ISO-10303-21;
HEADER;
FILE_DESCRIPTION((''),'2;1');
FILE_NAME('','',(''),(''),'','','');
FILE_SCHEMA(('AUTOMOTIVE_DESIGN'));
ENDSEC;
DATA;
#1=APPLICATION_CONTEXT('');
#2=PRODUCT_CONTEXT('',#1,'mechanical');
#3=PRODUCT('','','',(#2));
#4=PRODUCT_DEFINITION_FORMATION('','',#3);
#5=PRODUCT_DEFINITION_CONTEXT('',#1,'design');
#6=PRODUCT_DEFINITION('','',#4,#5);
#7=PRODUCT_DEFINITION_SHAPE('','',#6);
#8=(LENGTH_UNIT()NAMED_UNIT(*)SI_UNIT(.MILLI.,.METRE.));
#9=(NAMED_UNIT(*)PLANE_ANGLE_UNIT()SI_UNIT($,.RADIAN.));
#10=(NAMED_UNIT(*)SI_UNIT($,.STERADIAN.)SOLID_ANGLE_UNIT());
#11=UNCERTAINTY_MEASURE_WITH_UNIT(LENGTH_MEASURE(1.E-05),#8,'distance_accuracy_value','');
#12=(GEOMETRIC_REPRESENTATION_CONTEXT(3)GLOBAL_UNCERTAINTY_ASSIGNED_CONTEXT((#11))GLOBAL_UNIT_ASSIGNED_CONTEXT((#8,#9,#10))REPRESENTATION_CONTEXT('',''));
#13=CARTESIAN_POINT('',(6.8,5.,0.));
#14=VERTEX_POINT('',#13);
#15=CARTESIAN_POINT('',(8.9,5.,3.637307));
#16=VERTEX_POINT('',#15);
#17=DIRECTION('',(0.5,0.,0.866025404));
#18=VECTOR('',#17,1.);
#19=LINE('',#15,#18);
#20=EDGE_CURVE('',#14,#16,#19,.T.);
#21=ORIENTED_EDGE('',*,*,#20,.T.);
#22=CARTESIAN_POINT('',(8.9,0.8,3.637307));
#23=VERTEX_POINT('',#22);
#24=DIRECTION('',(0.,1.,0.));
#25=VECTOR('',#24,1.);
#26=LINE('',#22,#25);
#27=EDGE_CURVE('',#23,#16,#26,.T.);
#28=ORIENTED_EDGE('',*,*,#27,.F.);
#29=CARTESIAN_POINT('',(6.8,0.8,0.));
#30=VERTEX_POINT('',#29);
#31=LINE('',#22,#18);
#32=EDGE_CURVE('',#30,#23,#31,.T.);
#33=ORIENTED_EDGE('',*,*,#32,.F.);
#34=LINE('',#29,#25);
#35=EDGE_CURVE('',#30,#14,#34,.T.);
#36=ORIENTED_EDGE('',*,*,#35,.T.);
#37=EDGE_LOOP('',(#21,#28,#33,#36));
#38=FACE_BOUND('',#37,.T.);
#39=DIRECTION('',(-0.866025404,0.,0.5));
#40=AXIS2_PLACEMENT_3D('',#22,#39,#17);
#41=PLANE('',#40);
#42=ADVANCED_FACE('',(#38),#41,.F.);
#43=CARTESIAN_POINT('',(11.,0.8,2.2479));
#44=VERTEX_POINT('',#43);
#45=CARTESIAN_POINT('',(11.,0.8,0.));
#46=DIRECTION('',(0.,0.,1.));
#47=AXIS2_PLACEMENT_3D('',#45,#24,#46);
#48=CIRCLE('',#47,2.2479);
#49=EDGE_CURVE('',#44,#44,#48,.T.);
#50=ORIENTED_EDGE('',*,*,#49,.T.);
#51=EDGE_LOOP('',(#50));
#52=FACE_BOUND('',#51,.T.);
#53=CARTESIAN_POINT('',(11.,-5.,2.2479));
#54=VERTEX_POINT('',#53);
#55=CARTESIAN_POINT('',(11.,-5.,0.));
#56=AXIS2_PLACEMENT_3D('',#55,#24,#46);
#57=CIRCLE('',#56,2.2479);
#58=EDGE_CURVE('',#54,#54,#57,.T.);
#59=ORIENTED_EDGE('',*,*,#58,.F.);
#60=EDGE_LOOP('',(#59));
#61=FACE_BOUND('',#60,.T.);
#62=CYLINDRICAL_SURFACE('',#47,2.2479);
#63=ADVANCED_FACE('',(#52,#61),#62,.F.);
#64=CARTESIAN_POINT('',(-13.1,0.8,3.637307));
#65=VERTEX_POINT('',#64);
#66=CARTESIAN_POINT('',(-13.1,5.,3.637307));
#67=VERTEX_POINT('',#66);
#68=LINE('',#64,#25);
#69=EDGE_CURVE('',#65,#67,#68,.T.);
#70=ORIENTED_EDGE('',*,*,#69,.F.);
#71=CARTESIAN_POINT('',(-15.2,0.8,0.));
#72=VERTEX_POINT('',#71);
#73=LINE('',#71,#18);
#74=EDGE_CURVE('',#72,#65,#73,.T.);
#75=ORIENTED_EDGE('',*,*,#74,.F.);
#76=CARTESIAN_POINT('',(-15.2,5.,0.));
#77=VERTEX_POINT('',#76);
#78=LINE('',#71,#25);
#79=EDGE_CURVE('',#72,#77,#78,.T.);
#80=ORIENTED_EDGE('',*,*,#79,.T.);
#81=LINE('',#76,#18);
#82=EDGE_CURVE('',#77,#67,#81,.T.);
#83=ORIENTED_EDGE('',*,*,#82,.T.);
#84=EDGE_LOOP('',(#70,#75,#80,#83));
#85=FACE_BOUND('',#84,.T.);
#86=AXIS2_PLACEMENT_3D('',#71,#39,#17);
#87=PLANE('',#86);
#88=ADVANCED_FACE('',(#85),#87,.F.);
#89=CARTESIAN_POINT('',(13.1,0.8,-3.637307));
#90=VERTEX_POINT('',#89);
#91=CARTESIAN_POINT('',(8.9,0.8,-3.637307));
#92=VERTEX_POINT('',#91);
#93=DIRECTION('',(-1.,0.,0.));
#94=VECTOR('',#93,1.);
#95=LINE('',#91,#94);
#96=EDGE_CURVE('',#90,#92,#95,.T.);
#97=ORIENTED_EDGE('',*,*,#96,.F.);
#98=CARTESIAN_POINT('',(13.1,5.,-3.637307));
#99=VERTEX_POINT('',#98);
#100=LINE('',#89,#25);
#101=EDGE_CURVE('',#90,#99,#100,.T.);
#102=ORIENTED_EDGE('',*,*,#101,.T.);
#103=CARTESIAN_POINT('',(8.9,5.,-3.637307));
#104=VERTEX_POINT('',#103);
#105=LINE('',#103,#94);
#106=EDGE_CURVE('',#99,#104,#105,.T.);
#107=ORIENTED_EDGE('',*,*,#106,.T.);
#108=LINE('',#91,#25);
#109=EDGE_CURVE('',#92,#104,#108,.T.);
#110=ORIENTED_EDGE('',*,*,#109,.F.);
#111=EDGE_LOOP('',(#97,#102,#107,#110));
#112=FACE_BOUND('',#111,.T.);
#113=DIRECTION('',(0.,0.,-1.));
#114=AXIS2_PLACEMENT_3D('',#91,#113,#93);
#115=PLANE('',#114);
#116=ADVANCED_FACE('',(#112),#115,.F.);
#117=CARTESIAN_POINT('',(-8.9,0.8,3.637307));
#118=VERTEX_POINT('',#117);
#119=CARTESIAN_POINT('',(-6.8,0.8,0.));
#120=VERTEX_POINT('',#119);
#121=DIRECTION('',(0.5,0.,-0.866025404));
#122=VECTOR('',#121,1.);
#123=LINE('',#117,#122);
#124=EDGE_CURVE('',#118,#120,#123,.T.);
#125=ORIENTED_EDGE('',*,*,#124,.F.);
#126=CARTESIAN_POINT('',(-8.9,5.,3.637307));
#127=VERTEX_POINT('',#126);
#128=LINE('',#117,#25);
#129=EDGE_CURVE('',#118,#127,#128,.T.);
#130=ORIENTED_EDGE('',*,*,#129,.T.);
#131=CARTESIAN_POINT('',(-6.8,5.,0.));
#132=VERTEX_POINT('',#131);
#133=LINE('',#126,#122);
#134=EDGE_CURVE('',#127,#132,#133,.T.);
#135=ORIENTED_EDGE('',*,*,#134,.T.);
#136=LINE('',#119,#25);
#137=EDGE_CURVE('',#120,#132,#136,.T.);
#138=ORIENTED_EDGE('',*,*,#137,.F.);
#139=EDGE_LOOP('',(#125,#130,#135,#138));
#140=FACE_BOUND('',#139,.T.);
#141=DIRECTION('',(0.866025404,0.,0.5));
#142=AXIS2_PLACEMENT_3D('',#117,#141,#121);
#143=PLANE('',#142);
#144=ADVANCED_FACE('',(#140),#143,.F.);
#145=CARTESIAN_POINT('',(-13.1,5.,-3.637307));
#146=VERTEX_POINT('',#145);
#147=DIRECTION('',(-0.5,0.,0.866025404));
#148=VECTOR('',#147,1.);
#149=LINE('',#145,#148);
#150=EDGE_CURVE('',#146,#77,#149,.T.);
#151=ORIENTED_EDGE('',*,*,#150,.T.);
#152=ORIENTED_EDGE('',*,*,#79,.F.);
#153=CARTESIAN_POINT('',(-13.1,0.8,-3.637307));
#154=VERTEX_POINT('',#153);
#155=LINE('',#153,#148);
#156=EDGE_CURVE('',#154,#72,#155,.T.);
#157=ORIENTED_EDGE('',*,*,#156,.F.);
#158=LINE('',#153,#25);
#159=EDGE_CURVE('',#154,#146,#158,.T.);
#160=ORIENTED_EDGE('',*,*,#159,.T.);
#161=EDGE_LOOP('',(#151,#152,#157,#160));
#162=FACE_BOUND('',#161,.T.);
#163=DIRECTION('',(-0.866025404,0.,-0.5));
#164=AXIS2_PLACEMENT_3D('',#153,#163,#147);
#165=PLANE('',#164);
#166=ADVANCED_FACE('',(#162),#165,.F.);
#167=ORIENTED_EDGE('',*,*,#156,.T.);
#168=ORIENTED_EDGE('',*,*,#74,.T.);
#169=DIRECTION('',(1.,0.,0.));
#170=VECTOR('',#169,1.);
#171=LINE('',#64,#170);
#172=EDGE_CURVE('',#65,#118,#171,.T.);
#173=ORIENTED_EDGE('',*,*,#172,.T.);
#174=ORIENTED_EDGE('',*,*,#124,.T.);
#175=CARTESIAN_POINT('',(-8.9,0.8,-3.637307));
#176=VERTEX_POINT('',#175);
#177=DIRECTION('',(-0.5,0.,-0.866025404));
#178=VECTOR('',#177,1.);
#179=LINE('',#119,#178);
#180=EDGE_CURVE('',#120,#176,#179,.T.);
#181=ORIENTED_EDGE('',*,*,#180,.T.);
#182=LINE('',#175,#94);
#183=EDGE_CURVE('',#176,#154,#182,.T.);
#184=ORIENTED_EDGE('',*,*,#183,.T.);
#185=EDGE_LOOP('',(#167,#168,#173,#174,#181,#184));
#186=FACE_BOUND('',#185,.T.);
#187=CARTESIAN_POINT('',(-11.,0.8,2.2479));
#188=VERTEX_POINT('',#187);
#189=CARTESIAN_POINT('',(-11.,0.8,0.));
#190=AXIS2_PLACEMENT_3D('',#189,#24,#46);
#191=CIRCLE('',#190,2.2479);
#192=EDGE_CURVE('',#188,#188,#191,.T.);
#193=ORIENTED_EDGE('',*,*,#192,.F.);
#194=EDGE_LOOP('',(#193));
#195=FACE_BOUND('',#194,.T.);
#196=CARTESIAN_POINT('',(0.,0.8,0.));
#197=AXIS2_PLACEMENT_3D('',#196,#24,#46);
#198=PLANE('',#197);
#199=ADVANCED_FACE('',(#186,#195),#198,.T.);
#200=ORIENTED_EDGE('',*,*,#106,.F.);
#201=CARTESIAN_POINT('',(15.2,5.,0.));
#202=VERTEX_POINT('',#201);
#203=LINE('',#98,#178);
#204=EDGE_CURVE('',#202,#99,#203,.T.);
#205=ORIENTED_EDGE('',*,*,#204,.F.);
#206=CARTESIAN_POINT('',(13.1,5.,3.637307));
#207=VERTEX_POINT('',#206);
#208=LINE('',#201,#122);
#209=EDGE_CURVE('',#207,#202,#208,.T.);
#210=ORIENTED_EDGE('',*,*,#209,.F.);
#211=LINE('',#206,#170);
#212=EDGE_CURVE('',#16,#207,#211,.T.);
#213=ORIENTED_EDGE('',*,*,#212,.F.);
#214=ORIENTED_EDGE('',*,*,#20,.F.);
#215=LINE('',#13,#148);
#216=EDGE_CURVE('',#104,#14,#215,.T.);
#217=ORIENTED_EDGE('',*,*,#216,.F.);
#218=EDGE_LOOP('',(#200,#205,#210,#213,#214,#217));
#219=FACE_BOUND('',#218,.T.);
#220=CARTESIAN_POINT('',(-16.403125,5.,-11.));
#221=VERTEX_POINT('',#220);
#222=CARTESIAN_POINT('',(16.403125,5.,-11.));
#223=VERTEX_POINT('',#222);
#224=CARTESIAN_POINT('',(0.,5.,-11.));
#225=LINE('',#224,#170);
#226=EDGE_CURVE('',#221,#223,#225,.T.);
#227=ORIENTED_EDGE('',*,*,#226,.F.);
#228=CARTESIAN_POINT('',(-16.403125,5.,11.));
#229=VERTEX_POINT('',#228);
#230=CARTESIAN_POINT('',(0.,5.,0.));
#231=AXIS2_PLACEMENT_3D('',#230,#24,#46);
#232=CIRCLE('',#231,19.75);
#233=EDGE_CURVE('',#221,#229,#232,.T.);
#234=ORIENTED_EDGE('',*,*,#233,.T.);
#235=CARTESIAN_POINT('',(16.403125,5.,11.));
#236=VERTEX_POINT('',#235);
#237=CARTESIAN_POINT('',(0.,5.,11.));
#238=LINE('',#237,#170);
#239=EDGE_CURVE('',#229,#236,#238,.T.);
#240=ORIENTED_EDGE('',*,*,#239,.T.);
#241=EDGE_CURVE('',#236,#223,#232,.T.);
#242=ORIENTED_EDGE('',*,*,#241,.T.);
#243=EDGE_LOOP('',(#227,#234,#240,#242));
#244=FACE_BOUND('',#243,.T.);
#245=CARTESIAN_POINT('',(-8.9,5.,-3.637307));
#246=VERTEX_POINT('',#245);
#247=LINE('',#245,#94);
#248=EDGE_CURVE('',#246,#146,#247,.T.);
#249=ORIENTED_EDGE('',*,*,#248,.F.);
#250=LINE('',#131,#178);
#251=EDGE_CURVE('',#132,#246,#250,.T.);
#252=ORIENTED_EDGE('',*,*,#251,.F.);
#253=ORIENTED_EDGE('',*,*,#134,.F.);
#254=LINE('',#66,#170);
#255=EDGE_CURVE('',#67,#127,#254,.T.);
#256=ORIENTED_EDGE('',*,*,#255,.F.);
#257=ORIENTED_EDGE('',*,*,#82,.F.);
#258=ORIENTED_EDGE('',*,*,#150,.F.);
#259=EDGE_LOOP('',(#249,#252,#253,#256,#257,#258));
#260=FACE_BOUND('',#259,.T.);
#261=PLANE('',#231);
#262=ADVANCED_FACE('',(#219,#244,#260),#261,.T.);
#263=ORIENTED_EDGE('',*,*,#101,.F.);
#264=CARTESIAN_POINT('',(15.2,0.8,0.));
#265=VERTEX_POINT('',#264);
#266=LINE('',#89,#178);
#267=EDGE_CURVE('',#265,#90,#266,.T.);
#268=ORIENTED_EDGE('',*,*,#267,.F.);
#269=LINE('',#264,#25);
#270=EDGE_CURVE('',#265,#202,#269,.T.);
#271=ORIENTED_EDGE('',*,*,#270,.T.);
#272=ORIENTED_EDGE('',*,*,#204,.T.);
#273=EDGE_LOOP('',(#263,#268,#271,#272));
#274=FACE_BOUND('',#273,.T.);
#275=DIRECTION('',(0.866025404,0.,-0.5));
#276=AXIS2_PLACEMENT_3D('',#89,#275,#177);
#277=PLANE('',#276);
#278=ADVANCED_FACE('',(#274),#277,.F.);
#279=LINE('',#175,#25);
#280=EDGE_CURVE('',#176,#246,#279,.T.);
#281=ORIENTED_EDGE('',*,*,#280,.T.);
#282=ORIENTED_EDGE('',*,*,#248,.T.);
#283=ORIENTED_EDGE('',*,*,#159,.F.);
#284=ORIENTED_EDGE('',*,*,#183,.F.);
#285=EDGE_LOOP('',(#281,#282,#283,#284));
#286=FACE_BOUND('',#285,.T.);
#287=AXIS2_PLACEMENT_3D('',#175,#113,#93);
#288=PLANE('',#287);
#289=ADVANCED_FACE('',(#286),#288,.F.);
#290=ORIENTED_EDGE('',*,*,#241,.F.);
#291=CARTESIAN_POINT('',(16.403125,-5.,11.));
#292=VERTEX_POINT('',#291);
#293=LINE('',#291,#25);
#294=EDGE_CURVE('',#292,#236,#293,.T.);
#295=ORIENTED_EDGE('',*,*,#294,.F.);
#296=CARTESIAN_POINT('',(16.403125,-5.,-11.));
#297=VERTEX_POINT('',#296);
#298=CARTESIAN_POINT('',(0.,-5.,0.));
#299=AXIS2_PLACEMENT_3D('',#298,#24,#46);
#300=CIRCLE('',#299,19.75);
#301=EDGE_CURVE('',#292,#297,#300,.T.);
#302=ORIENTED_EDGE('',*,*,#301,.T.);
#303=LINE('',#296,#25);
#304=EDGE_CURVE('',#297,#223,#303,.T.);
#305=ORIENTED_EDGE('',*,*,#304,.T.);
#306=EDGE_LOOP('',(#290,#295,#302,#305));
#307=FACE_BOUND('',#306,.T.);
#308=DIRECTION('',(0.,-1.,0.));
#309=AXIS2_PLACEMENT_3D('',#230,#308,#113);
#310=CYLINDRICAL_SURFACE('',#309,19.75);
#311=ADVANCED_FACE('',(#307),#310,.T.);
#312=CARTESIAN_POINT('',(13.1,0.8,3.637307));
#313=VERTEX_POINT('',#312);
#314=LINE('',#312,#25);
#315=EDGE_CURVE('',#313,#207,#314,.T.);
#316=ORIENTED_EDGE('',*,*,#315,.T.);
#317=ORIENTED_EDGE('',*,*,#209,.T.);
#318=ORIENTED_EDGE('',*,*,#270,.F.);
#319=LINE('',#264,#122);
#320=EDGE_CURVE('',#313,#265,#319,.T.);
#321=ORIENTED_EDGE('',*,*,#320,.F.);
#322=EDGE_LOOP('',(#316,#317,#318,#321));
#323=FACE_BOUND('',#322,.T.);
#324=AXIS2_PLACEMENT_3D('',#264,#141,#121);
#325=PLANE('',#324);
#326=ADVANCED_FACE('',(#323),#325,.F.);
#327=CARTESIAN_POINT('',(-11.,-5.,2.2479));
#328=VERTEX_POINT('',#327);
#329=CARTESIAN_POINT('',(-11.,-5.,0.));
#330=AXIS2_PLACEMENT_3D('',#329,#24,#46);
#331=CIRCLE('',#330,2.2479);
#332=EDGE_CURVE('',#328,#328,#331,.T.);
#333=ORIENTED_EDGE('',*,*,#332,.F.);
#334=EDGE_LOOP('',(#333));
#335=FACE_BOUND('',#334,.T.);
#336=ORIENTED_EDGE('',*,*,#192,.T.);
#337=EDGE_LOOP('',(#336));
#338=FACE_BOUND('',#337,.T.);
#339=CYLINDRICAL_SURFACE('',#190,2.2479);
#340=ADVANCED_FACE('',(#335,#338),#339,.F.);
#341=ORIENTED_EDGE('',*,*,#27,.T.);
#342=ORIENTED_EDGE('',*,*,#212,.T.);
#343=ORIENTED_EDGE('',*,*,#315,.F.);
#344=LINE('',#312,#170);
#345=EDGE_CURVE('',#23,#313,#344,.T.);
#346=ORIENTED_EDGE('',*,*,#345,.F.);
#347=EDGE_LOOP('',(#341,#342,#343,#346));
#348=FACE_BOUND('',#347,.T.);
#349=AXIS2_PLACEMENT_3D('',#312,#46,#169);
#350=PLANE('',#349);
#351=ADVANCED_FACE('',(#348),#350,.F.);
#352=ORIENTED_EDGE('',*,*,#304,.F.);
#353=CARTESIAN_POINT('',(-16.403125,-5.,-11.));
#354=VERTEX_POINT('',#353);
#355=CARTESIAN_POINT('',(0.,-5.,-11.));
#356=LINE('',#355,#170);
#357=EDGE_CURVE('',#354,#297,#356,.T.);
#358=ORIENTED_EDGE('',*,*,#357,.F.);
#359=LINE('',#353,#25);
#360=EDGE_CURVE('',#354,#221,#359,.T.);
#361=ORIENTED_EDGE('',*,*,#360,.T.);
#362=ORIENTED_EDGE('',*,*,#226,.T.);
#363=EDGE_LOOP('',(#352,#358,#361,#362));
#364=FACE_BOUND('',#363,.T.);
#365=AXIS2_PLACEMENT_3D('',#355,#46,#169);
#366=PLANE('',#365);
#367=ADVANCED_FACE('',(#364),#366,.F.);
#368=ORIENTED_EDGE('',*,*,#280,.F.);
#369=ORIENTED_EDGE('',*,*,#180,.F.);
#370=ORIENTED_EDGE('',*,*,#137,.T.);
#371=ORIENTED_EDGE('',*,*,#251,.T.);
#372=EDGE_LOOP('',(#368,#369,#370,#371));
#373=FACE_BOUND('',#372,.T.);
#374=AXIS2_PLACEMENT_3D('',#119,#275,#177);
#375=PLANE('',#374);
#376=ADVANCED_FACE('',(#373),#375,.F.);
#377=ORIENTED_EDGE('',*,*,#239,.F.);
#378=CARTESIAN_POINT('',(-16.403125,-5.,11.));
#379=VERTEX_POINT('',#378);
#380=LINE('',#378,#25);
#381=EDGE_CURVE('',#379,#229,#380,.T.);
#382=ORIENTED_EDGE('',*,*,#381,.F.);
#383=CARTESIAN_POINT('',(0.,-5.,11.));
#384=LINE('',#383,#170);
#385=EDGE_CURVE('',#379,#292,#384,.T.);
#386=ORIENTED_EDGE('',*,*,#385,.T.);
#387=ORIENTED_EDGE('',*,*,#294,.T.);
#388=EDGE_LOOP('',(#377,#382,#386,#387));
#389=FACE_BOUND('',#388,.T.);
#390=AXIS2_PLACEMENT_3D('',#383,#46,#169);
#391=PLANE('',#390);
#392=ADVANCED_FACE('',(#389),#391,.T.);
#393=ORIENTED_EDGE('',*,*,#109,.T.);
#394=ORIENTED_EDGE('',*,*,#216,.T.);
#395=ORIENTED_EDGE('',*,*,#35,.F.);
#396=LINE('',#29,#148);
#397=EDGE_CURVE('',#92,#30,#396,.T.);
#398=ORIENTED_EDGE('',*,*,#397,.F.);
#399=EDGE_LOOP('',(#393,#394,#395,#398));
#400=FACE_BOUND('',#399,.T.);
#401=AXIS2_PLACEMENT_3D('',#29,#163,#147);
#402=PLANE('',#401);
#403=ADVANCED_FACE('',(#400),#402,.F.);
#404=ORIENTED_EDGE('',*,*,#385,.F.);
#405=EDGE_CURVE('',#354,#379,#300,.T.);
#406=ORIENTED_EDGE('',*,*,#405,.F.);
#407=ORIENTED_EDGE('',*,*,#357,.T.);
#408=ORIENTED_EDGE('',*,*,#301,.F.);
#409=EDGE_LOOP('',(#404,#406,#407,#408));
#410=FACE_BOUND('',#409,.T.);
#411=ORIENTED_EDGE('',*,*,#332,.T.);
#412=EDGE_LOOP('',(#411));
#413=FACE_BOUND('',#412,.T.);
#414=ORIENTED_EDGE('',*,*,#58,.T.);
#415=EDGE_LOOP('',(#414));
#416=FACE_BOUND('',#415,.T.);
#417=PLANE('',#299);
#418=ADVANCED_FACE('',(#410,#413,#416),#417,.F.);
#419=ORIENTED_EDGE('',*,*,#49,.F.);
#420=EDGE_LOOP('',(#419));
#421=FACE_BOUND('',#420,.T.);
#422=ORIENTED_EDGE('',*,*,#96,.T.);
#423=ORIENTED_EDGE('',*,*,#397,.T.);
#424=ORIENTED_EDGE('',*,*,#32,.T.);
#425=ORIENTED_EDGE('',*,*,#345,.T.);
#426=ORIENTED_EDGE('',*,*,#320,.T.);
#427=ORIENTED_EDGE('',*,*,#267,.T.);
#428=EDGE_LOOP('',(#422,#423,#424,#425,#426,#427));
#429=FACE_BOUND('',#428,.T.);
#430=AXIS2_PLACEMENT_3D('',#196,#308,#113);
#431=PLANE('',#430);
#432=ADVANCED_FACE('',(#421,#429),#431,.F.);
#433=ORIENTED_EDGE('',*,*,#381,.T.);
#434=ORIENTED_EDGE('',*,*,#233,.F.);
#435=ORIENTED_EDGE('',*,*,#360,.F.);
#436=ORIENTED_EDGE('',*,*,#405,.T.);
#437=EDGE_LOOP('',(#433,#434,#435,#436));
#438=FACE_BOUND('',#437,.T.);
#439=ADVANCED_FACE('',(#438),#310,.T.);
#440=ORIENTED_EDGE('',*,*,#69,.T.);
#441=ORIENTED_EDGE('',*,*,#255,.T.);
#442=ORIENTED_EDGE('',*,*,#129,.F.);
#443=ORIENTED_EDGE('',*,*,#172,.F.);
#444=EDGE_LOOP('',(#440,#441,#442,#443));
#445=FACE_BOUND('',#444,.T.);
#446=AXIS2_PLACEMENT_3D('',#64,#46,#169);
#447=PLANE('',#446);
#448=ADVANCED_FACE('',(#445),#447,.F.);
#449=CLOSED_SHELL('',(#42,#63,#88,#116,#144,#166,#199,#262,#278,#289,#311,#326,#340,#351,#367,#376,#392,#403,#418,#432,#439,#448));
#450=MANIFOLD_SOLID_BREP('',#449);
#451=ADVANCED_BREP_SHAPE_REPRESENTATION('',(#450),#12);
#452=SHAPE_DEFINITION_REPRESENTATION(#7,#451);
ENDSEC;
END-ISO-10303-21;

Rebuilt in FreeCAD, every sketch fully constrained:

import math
import FreeCAD as App
import Part
import Sketcher
Q = App.Units.Quantity


def add_polygon(sketch, points):
    """Adds a closed chain of lines whose ends are joined by coincident constraints."""
    first, n = sketch.GeometryCount, len(points)
    for a, b in zip(points, points[1:] + points[:1]):
        sketch.addGeometry(Part.LineSegment(App.Vector(*a, 0), App.Vector(*b, 0)), False)
    for i in range(n):
        sketch.addConstraint(Sketcher.Constraint("Coincident", first + i, 2, first + (i + 1) % n, 1))

doc = App.newDocument("Part")
body = doc.addObject("PartDesign::Body", "Body")

# Sketch on XZ plane
sketch1 = body.newObject("Sketcher::SketchObject", "Sketch")
sketch1.AttachmentSupport = (doc.getObject("XZ_Plane"), [""])
sketch1.MapMode = "FlatFace"
sketch1.addGeometry(Part.Circle(App.Vector(0, 0, 0), App.Vector(0, 0, 1), 19.75), False)
sketch1.addConstraint(Sketcher.Constraint("Coincident", 0, 3, -1, 1))
sketch1.addConstraint(Sketcher.Constraint("Diameter", 0, 39.5))
pad1 = body.newObject("PartDesign::Pad", "Pad")
pad1.Profile = sketch1
pad1.Length = 10
pad1.Midplane = True

# Sketch on XZ plane
sketch2 = body.newObject("Sketcher::SketchObject", "Sketch001")
sketch2.AttachmentSupport = (doc.getObject("XZ_Plane"), [""])
sketch2.MapMode = "FlatFace"
sketch2.AttachmentOffset = App.Placement(App.Vector(0, 0, -5), App.Rotation())
add_polygon(sketch2, [(-8.9, 3.637307), (-6.8, 0), (-8.9, -3.637307), (-13.1, -3.637307), (-15.2, 0), (-13.1, 3.637307)])  # lines 0-5
add_polygon(sketch2, [(8.9, 3.637307), (13.1, 3.637307), (15.2, 0), (13.1, -3.637307), (8.9, -3.637307), (6.8, 0)])  # lines 6-11
sketch2.addConstraint(Sketcher.Constraint("Horizontal", 2))
sketch2.addConstraint(Sketcher.Constraint("Horizontal", 5))
sketch2.addConstraint(Sketcher.Constraint("Horizontal", 6))
sketch2.addConstraint(Sketcher.Constraint("Horizontal", 9))
sketch2.addConstraint(Sketcher.Constraint("Symmetric", 2, 2, 6, 2, -1, 1))
sketch2.addConstraint(Sketcher.Constraint("Symmetric", 3, 2, 7, 2, -1, 1))
sketch2.addConstraint(Sketcher.Constraint("Symmetric", 4, 2, 8, 2, -1, 1))
sketch2.addConstraint(Sketcher.Constraint("Symmetric", 0, 2, 10, 2, -1, 1))
sketch2.addConstraint(Sketcher.Constraint("Symmetric", 4, 2, 6, 2, -2))
sketch2.addConstraint(Sketcher.Constraint("PointOnObject", 0, 2, -1))
sketch2.addConstraint(Sketcher.Constraint("PointOnObject", 3, 2, -1))
sketch2.addConstraint(Sketcher.Constraint("Parallel", 0, 3))
sketch2.addConstraint(Sketcher.Constraint("Parallel", 1, 4))
sketch2.addConstraint(Sketcher.Constraint("Parallel", 7, 10))
sketch2.addConstraint(Sketcher.Constraint("Parallel", 8, 11))
sketch2.addConstraint(Sketcher.Constraint("Angle", 0, Q("-60 deg")))
sketch2.addConstraint(Sketcher.Constraint("DistanceX", 2, 2, 2, 1, 4.2))
sketch2.addConstraint(Sketcher.Constraint("DistanceX", 5, 2, 6, 2, 22.0))
sketch2.addConstraint(Sketcher.Constraint("Distance", 0, 4.2))
pocket1 = body.newObject("PartDesign::Pocket", "Pocket")
pocket1.Profile = sketch2
pocket1.Length = 4.2
pocket1.Reversed = True

# Sketch on XZ plane
sketch3 = body.newObject("Sketcher::SketchObject", "Sketch002")
sketch3.AttachmentSupport = (doc.getObject("XZ_Plane"), [""])
sketch3.MapMode = "FlatFace"
sketch3.AttachmentOffset = App.Placement(App.Vector(0, 0, -0.8), App.Rotation())
sketch3.addGeometry(Part.Circle(App.Vector(-11, 0, 0), App.Vector(0, 0, 1), 2.2479), False)
sketch3.addGeometry(Part.Circle(App.Vector(11, 0, 0), App.Vector(0, 0, 1), 2.2479), False)
sketch3.addConstraint(Sketcher.Constraint("Equal", 0, 1))
sketch3.addConstraint(Sketcher.Constraint("Symmetric", 0, 3, 1, 3, -1, 1))
sketch3.addConstraint(Sketcher.Constraint("PointOnObject", 0, 3, -1))
sketch3.addConstraint(Sketcher.Constraint("DistanceX", 0, 3, -1, 1, 11.0))
sketch3.addConstraint(Sketcher.Constraint("Diameter", 0, 4.4958))
doc.recompute()
hole = body.newObject("PartDesign::Hole", "Hole")
hole.Profile = sketch3
hole.ThreadType = "None"
hole.Diameter = 4.4958
hole.DepthType = "ThroughAll"
hole.Reversed = True

# Sketch on XZ plane
sketch4 = body.newObject("Sketcher::SketchObject", "Sketch003")
sketch4.AttachmentSupport = (doc.getObject("XZ_Plane"), [""])
sketch4.MapMode = "FlatFace"
sketch4.AttachmentOffset = App.Placement(App.Vector(0, 0, -5), App.Rotation())
sketch4.addGeometry(Part.ArcOfCircle(Part.Circle(App.Vector(0, 0, 0), App.Vector(0, 0, 1), 19.75), math.radians(-146.154039), math.radians(-33.845961)), False)
sketch4.addGeometry(Part.LineSegment(App.Vector(-16.403125, -11, 0), App.Vector(16.403125, -11, 0)), False)
sketch4.addGeometry(Part.LineSegment(App.Vector(16.403125, 11, 0), App.Vector(-16.403125, 11, 0)), False)
sketch4.addGeometry(Part.ArcOfCircle(Part.Circle(App.Vector(0, 0, 0), App.Vector(0, 0, 1), 19.75), math.radians(33.845961), math.radians(146.154039)), False)
sketch4.addConstraint(Sketcher.Constraint("Coincident", 0, 1, 1, 1))
sketch4.addConstraint(Sketcher.Constraint("Coincident", 1, 2, 0, 2))
sketch4.addConstraint(Sketcher.Constraint("Coincident", 2, 1, 3, 1))
sketch4.addConstraint(Sketcher.Constraint("Coincident", 3, 2, 2, 2))
sketch4.addConstraint(Sketcher.Constraint("Horizontal", 1))
sketch4.addConstraint(Sketcher.Constraint("Horizontal", 2))
sketch4.addConstraint(Sketcher.Constraint("Coincident", 0, 3, -1, 1))
sketch4.addConstraint(Sketcher.Constraint("Coincident", 3, 3, -1, 1))
sketch4.addConstraint(Sketcher.Constraint("Equal", 0, 3))
sketch4.addConstraint(Sketcher.Constraint("Vertical", 1, 2, 2, 1))
sketch4.addConstraint(Sketcher.Constraint("Radius", 0, 19.75))
sketch4.addConstraint(Sketcher.Constraint("DistanceY", 0, 1, -1, 1, 11.0))
pocket2 = body.newObject("PartDesign::Pocket", "Pocket001")
pocket2.Profile = sketch4
pocket2.Length = 10
pocket2.Reversed = True

doc.recompute()
